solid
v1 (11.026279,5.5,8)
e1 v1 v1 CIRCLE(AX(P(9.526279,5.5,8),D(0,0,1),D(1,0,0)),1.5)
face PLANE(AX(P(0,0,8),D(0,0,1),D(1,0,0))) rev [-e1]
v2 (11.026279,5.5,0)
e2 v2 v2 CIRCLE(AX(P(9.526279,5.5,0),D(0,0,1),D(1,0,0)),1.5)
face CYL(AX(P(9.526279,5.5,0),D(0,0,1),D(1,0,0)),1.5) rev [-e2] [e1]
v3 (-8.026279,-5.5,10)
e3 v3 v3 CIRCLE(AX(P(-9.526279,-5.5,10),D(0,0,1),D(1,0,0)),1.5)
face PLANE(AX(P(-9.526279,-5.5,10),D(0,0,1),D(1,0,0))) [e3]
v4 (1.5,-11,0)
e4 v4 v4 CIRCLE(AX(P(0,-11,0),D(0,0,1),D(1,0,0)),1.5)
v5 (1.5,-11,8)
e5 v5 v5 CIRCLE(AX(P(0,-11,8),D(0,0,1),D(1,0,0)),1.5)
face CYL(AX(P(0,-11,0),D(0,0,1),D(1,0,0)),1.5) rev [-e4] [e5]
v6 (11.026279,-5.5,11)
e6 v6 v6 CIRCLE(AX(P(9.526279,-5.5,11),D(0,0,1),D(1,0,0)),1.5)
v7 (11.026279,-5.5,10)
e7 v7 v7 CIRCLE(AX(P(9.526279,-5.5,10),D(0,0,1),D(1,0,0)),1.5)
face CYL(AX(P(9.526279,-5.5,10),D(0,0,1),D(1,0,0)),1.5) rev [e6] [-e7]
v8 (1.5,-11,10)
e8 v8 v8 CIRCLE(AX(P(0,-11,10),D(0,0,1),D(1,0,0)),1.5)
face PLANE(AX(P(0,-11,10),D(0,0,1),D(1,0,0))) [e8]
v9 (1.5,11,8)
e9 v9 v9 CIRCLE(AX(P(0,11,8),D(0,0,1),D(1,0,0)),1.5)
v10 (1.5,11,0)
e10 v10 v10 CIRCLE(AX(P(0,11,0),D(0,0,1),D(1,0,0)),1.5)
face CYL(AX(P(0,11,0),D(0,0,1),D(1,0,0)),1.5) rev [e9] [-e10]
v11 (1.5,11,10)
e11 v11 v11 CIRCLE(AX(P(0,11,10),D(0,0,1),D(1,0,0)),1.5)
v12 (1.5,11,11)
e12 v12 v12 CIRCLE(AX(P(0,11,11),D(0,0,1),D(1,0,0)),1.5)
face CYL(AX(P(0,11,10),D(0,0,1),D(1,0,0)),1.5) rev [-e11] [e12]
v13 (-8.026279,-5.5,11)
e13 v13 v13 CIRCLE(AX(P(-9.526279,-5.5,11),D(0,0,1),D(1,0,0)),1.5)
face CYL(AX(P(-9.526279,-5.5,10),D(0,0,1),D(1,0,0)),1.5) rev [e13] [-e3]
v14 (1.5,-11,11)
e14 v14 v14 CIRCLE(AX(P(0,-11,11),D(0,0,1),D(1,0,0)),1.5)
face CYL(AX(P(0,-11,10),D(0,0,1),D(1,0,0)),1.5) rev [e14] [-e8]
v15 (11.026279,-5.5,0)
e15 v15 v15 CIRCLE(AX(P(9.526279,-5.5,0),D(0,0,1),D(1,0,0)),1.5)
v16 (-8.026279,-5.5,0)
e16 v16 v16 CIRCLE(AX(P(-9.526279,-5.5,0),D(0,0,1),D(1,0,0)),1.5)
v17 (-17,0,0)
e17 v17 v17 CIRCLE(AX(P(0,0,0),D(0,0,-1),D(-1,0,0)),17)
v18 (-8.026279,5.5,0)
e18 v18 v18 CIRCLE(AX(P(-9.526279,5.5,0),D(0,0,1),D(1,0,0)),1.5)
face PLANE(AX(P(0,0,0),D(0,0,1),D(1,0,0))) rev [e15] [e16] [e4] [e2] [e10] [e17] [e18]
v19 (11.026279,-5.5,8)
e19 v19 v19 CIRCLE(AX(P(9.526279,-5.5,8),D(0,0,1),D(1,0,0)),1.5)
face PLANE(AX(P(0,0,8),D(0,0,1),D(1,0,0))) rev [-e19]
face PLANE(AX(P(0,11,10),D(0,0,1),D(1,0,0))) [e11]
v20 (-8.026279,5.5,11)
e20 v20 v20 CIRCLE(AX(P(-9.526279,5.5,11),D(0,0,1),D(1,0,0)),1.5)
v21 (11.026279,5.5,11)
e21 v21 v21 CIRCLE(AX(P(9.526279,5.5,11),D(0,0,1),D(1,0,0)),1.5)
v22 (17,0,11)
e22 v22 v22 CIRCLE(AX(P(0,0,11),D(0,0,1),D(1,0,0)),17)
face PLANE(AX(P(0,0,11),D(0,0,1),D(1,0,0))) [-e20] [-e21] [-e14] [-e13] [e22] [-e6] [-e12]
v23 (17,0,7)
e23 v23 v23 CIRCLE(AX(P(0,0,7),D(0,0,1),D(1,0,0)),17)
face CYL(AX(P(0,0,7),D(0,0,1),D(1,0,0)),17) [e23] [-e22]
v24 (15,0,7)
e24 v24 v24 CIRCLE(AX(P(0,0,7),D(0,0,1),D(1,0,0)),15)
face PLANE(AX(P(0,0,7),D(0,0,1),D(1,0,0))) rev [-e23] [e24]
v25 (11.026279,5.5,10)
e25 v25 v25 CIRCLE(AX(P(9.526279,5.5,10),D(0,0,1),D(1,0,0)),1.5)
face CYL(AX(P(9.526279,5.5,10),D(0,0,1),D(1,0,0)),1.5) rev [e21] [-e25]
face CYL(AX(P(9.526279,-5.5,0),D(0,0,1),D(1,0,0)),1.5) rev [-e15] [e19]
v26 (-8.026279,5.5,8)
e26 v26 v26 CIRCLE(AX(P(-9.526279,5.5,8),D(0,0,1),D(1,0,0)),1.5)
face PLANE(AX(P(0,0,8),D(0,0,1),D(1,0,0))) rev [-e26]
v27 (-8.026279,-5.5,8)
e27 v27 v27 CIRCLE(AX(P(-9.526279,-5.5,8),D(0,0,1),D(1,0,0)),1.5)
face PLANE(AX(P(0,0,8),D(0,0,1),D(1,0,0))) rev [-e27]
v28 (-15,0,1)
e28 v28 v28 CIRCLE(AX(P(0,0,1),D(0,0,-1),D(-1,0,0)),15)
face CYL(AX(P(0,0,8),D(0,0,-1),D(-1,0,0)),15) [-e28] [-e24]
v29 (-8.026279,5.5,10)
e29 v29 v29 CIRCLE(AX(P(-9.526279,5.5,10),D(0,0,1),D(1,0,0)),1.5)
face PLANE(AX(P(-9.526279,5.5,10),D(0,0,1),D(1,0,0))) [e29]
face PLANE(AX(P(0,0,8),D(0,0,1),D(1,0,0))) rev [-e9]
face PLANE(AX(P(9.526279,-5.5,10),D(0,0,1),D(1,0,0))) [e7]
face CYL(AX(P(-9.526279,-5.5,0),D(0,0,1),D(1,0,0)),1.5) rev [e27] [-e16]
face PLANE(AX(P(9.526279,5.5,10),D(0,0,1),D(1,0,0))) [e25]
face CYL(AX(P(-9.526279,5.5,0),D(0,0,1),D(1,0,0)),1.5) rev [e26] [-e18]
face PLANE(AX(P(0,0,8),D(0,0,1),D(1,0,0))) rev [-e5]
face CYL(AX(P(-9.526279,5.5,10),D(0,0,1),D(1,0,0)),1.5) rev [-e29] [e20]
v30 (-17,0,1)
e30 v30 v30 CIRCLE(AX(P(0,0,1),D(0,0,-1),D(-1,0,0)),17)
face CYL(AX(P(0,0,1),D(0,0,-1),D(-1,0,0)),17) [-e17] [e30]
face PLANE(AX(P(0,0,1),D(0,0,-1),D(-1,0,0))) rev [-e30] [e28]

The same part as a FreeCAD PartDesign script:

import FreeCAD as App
import Part
import Sketcher
Q = App.Units.Quantity

doc = App.newDocument("Part")
params = doc.addObject("Spreadsheet::Sheet", "Params")
for row, (alias, value) in enumerate([
    ("sketch1_diameter", "30 mm"),
    ("pad1_length", "8 mm"),
    ("sketch2_diameter", "34 mm"),
    ("sketch2_diameter2", "30 mm"),
    ("pad2_length", "1 mm"),
    ("sketch3_diameter", "3 mm"),
    ("sketch4_diameter", "34 mm"),
    ("sketch4_diameter2", "30 mm"),
    ("pad3_length", "1 mm"),
    ("sketch5_diameter", "34 mm"),
    ("pad4_length", "3 mm"),
    ("sketch6_diameter", "3 mm"),
    ("pocket2_length", "1 mm"),
], start=1):
    params.set(f"A{row}", alias)
    params.set(f"B{row}", "=" + value)
    params.setAlias(f"B{row}", alias)

body = doc.addObject("PartDesign::Body", "Body")

# Sketch on XY plane
sketch1 = body.newObject("Sketcher::SketchObject", "Sketch")
sketch1.AttachmentSupport = (doc.getObject("XY_Plane"), [""])
sketch1.MapMode = "FlatFace"
sketch1.addGeometry(Part.Circle(App.Vector(0, 0, 0), App.Vector(0, 0, 1), 15), False)
sketch1.addConstraint([
    Sketcher.Constraint("Coincident", 0, 3, -1, 1),
    Sketcher.Constraint("Diameter", 0, Q("30 mm")),
])
sketch1.setExpression("Constraints[1]", "Params.sketch1_diameter")
pad1 = body.newObject("PartDesign::Pad", "Pad")
pad1.Profile = sketch1
pad1.setExpression("Length", "Params.pad1_length")

# Sketch on XY plane
sketch2 = body.newObject("Sketcher::SketchObject", "Sketch001")
sketch2.AttachmentSupport = (doc.getObject("XY_Plane"), [""])
sketch2.MapMode = "FlatFace"
sketch2.addGeometry([
    Part.Circle(App.Vector(0, 0, 0), App.Vector(0, 0, 1), 17),
    Part.Circle(App.Vector(0, 0, 0), App.Vector(0, 0, 1), 15),
], False)
sketch2.addConstraint([
    Sketcher.Constraint("Coincident", 0, 3, -1, 1),
    Sketcher.Constraint("Coincident", 1, 3, -1, 1),
    Sketcher.Constraint("Diameter", 0, Q("34 mm")),
    Sketcher.Constraint("Diameter", 1, Q("30 mm")),
])
sketch2.setExpression("Constraints[2]", "Params.sketch2_diameter")
sketch2.setExpression("Constraints[3]", "Params.sketch2_diameter2")
pad2 = body.newObject("PartDesign::Pad", "Pad001")
pad2.Profile = sketch2
pad2.setExpression("Length", "Params.pad2_length")

# Sketch on XY plane
sketch3 = body.newObject("Sketcher::SketchObject", "Sketch002")
sketch3.AttachmentSupport = (doc.getObject("XY_Plane"), [""])
sketch3.MapMode = "FlatFace"
sketch3.AttachmentOffset = App.Placement(App.Vector(0, 0, 8), App.Rotation())
sketch3.addGeometry([
    Part.Circle(App.Vector(0, 11, 0), App.Vector(0, 0, 1), 1.5),  # 0
    Part.Circle(App.Vector(9.5, 5.5, 0), App.Vector(0, 0, 1), 1.5),  # 1
    Part.Circle(App.Vector(9.5, -5.5, 0), App.Vector(0, 0, 1), 1.5),  # 2
    Part.Circle(App.Vector(0, -11, 0), App.Vector(0, 0, 1), 1.5),  # 3
    Part.Circle(App.Vector(-9.5, -5.5, 0), App.Vector(0, 0, 1), 1.5),  # 4
    Part.Circle(App.Vector(-9.5, 5.5, 0), App.Vector(0, 0, 1), 1.5),  # 5
], False)
sketch3.addConstraint([
    Sketcher.Constraint("Equal", 0, 1),
    Sketcher.Constraint("Equal", 1, 2),
    Sketcher.Constraint("Equal", 2, 3),
    Sketcher.Constraint("Equal", 3, 4),
    Sketcher.Constraint("Equal", 4, 5),
    Sketcher.Constraint("Symmetric", 0, 3, 3, 3, -1, 1),
    Sketcher.Constraint("Symmetric", 1, 3, 4, 3, -1, 1),
    Sketcher.Constraint("Symmetric", 2, 3, 5, 3, -1, 1),
    Sketcher.Constraint("Symmetric", 2, 3, 4, 3, -2),
    Sketcher.Constraint("PointOnObject", 0, 3, -2),
    Sketcher.Constraint("Diameter", 0, Q("3 mm")),
    Sketcher.Constraint("DistanceY", -1, 1, 0, 3, Q("11 mm")),
    Sketcher.Constraint("DistanceY", 2, 3, 1, 3, Q("11 mm")),
    Sketcher.Constraint("DistanceX", -1, 1, 1, 3, Q("9.526279 mm")),
])
sketch3.setExpression("Constraints[10]", "Params.sketch3_diameter")
pocket1 = body.newObject("PartDesign::Pocket", "Pocket")
pocket1.Profile = sketch3
pocket1.Type = "ThroughAll"

# Sketch on XY plane
sketch4 = body.newObject("Sketcher::SketchObject", "Sketch003")
sketch4.AttachmentSupport = (doc.getObject("XY_Plane"), [""])
sketch4.MapMode = "FlatFace"
sketch4.AttachmentOffset = App.Placement(App.Vector(0, 0, 7), App.Rotation())
sketch4.addGeometry([
    Part.Circle(App.Vector(0, 0, 0), App.Vector(0, 0, 1), 17),
    Part.Circle(App.Vector(0, 0, 0), App.Vector(0, 0, 1), 15),
], False)
sketch4.addConstraint([
    Sketcher.Constraint("Coincident", 0, 3, -1, 1),
    Sketcher.Constraint("Coincident", 1, 3, -1, 1),
    Sketcher.Constraint("Diameter", 0, Q("34 mm")),
    Sketcher.Constraint("Diameter", 1, Q("30 mm")),
])
sketch4.setExpression("Constraints[2]", "Params.sketch4_diameter")
sketch4.setExpression("Constraints[3]", "Params.sketch4_diameter2")
pad3 = body.newObject("PartDesign::Pad", "Pad002")
pad3.Profile = sketch4
pad3.setExpression("Length", "Params.pad3_length")

# Sketch on XY plane
sketch5 = body.newObject("Sketcher::SketchObject", "Sketch004")
sketch5.AttachmentSupport = (doc.getObject("XY_Plane"), [""])
sketch5.MapMode = "FlatFace"
sketch5.AttachmentOffset = App.Placement(App.Vector(0, 0, 8), App.Rotation())
sketch5.addGeometry(Part.Circle(App.Vector(0, 0, 0), App.Vector(0, 0, 1), 17), False)
sketch5.addConstraint([
    Sketcher.Constraint("Coincident", 0, 3, -1, 1),
    Sketcher.Constraint("Diameter", 0, Q("34 mm")),
])
sketch5.setExpression("Constraints[1]", "Params.sketch5_diameter")
pad4 = body.newObject("PartDesign::Pad", "Pad003")
pad4.Profile = sketch5
pad4.setExpression("Length", "Params.pad4_length")

# Sketch on XY plane
sketch6 = body.newObject("Sketcher::SketchObject", "Sketch005")
sketch6.AttachmentSupport = (doc.getObject("XY_Plane"), [""])
sketch6.MapMode = "FlatFace"
sketch6.AttachmentOffset = App.Placement(App.Vector(0, 0, 11), App.Rotation())
sketch6.addGeometry([
    Part.Circle(App.Vector(0, 11, 0), App.Vector(0, 0, 1), 1.5),  # 0
    Part.Circle(App.Vector(9.5, 5.5, 0), App.Vector(0, 0, 1), 1.5),  # 1
    Part.Circle(App.Vector(9.5, -5.5, 0), App.Vector(0, 0, 1), 1.5),  # 2
    Part.Circle(App.Vector(0, -11, 0), App.Vector(0, 0, 1), 1.5),  # 3
    Part.Circle(App.Vector(-9.5, -5.5, 0), App.Vector(0, 0, 1), 1.5),  # 4
    Part.Circle(App.Vector(-9.5, 5.5, 0), App.Vector(0, 0, 1), 1.5),  # 5
], False)
sketch6.addConstraint([
    Sketcher.Constraint("Equal", 0, 1),
    Sketcher.Constraint("Equal", 1, 2),
    Sketcher.Constraint("Equal", 2, 3),
    Sketcher.Constraint("Equal", 3, 4),
    Sketcher.Constraint("Equal", 4, 5),
    Sketcher.Constraint("Symmetric", 0, 3, 3, 3, -1, 1),
    Sketcher.Constraint("Symmetric", 1, 3, 4, 3, -1, 1),
    Sketcher.Constraint("Symmetric", 2, 3, 5, 3, -1, 1),
    Sketcher.Constraint("Symmetric", 2, 3, 4, 3, -2),
    Sketcher.Constraint("PointOnObject", 0, 3, -2),
    Sketcher.Constraint("Diameter", 0, Q("3 mm")),
    Sketcher.Constraint("DistanceY", -1, 1, 0, 3, Q("11 mm")),
    Sketcher.Constraint("DistanceY", 2, 3, 1, 3, Q("11 mm")),
    Sketcher.Constraint("DistanceX", -1, 1, 1, 3, Q("9.526279 mm")),
])
sketch6.setExpression("Constraints[10]", "Params.sketch6_diameter")
pocket2 = body.newObject("PartDesign::Pocket", "Pocket001")
pocket2.Profile = sketch6
pocket2.setExpression("Length", "Params.pocket2_length")

doc.recompute()
